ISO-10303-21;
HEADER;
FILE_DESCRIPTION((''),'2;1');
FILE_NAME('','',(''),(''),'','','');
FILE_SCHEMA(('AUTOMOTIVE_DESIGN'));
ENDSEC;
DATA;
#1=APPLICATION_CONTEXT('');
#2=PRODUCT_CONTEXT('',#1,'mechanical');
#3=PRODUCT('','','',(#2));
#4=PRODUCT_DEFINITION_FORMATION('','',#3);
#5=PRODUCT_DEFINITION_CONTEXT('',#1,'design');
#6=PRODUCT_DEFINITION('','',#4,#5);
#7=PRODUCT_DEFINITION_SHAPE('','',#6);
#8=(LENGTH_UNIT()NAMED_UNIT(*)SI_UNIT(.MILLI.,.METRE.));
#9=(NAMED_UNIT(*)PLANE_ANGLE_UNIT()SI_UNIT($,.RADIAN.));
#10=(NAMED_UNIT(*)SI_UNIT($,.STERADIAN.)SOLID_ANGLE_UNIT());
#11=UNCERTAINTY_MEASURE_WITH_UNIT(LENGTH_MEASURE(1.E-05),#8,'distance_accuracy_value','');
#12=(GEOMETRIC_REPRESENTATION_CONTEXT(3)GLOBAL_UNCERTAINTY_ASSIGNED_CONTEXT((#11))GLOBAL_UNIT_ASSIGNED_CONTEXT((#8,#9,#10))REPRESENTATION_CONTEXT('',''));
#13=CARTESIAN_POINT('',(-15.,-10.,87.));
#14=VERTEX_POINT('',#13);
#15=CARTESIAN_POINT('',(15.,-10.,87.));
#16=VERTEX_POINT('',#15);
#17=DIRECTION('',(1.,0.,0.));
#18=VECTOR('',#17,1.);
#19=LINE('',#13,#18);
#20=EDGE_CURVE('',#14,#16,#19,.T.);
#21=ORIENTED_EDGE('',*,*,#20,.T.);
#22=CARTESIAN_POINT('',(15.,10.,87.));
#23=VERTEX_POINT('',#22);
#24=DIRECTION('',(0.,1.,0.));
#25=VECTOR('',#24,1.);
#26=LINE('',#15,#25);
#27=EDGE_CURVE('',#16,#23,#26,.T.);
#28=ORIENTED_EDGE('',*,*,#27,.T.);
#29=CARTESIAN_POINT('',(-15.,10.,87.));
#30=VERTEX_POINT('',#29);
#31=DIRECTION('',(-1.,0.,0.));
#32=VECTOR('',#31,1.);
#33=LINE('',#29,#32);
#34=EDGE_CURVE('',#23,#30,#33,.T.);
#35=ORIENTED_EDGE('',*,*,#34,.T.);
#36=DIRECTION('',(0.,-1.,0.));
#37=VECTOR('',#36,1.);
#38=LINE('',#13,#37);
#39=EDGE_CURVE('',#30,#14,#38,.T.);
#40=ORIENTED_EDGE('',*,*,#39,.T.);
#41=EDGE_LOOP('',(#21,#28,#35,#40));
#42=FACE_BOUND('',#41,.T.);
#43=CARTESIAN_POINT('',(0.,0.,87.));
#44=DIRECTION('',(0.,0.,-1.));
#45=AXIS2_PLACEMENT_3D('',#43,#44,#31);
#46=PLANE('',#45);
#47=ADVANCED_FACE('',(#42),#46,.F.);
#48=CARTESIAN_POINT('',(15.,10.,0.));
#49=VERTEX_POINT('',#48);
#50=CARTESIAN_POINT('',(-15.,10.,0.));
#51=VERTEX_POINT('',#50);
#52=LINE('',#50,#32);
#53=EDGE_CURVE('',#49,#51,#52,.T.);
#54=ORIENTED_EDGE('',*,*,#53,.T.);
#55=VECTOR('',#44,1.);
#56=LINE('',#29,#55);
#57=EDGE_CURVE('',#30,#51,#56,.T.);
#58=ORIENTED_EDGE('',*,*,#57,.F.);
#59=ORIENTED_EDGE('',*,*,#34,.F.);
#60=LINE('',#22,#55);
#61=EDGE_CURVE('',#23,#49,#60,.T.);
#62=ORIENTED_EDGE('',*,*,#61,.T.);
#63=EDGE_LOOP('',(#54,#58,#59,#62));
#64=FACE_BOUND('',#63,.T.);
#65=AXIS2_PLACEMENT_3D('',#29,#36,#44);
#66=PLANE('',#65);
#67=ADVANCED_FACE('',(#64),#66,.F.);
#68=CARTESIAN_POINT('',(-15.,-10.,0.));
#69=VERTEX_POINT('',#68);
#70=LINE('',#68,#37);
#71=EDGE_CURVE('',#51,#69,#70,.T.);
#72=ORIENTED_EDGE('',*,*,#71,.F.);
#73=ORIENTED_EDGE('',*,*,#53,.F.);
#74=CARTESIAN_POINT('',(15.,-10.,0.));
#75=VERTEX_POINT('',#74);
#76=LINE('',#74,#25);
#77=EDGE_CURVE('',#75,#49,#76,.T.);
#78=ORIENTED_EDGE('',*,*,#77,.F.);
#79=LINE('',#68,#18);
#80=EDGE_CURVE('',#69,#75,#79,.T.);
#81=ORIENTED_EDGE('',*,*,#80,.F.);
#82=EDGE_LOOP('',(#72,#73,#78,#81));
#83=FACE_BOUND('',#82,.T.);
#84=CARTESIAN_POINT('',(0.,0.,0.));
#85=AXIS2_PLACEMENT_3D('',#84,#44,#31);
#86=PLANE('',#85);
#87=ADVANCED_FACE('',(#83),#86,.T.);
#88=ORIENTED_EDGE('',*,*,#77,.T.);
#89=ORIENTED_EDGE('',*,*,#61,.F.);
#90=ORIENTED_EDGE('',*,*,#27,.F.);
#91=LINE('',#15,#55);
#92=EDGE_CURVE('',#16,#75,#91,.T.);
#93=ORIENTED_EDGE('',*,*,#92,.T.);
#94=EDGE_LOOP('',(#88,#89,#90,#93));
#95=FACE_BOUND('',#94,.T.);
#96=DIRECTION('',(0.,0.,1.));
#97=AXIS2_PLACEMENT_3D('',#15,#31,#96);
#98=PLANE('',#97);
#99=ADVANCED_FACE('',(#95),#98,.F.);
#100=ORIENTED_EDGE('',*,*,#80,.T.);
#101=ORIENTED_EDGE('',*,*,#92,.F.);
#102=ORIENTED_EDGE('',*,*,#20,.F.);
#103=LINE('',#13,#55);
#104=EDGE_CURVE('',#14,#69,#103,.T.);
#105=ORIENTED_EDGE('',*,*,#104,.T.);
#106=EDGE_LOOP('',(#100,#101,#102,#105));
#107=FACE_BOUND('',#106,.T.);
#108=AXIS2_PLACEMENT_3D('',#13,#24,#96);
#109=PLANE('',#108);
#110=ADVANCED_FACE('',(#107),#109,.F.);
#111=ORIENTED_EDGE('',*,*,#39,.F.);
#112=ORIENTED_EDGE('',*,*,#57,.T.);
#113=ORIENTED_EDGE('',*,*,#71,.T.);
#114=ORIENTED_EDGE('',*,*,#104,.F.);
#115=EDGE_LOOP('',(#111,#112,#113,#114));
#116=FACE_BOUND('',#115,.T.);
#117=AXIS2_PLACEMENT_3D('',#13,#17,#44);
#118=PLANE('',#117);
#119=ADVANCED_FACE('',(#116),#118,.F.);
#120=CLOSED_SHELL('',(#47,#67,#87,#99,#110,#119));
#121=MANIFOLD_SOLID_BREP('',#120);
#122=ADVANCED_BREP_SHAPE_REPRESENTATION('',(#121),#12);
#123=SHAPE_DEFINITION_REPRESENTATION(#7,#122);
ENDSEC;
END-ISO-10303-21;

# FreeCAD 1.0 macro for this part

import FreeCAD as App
import Part
import Sketcher
Q = App.Units.Quantity

doc = App.newDocument("Part")
params = doc.addObject("Spreadsheet::Sheet", "Params")
for row, (alias, value) in enumerate([
    ("sketch1_width", "30 mm"),
    ("sketch1_height", "20 mm"),
    ("pad1_length", "87 mm"),
], start=1):
    params.set(f"A{row}", alias)
    params.set(f"B{row}", "=" + value)
    params.setAlias(f"B{row}", alias)

body = doc.addObject("PartDesign::Body", "Body")

# Sketch on XY plane
sketch1 = body.newObject("Sketcher::SketchObject", "Sketch")
sketch1.AttachmentSupport = (doc.getObject("XY_Plane"), [""])
sketch1.MapMode = "FlatFace"
sketch1.addGeometry(Part.LineSegment(App.Vector(-15, 10, 0), App.Vector(-15, -10, 0)), False)
sketch1.addGeometry(Part.LineSegment(App.Vector(-15, -10, 0), App.Vector(15, -10, 0)), False)
sketch1.addGeometry(Part.LineSegment(App.Vector(15, -10, 0), App.Vector(15, 10, 0)), False)
sketch1.addGeometry(Part.LineSegment(App.Vector(15, 10, 0), App.Vector(-15, 10, 0)), False)
sketch1.addConstraint(Sketcher.Constraint("Coincident", 0, 2, 1, 1))
sketch1.addConstraint(Sketcher.Constraint("Coincident", 1, 2, 2, 1))
sketch1.addConstraint(Sketcher.Constraint("Coincident", 2, 2, 3, 1))
sketch1.addConstraint(Sketcher.Constraint("Coincident", 3, 2, 0, 1))
sketch1.addConstraint(Sketcher.Constraint("Vertical", 0))
sketch1.addConstraint(Sketcher.Constraint("Horizontal", 1))
sketch1.addConstraint(Sketcher.Constraint("Vertical", 2))
sketch1.addConstraint(Sketcher.Constraint("Horizontal", 3))
sketch1.addConstraint(Sketcher.Constraint("Symmetric", 0, 2, 2, 2, -1, 1))
sketch1.addConstraint(Sketcher.Constraint("DistanceX", 1, 1, 1, 2, Q("30 mm")))
sketch1.addConstraint(Sketcher.Constraint("DistanceY", 0, 2, 0, 1, Q("20 mm")))
sketch1.setExpression("Constraints[9]", "Params.sketch1_width")
sketch1.setExpression("Constraints[10]", "Params.sketch1_height")
pad1 = body.newObject("PartDesign::Pad", "Pad")
pad1.Profile = sketch1
pad1.setExpression("Length", "Params.pad1_length")

doc.recompute()
